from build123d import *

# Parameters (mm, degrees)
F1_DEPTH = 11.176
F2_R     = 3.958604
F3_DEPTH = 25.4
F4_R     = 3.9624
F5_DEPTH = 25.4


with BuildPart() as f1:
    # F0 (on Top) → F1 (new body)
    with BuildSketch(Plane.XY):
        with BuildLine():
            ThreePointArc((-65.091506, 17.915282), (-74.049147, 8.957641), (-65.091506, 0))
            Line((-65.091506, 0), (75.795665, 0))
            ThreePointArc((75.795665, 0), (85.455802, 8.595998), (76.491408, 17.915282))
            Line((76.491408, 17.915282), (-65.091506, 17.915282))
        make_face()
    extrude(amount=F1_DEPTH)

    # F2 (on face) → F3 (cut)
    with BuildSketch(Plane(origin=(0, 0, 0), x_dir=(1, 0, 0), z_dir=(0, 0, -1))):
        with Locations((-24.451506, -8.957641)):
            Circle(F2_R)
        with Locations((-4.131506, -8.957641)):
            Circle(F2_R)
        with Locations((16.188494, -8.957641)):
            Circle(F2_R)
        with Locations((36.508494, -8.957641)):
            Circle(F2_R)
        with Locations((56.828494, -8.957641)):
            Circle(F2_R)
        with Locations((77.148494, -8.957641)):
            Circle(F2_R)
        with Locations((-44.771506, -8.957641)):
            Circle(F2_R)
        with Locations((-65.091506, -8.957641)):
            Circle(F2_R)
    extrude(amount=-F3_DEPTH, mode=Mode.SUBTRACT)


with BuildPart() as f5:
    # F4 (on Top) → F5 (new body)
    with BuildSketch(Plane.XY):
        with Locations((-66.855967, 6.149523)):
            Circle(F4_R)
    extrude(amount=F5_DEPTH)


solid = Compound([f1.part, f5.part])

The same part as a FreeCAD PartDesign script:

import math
import FreeCAD as App
import Part
import Sketcher

V = App.Vector
Q = App.Units.Quantity

doc = App.newDocument("Part")
params = doc.addObject("Spreadsheet::Sheet", "Params")
for row, (alias, value) in enumerate([
    ("pad1_length", "0.44 in"),
    ("pocket1_length", "1 in"),
    ("sketch3_diameter", "0.312 in"),
    ("pad2_length", "1 in"),
], start=1):
    params.set(f"A{row}", alias)
    params.set(f"B{row}", "=" + value)
    params.setAlias(f"B{row}", alias)

body = doc.addObject("PartDesign::Body", "Body")

# Sketch on XY plane
sketch1 = body.newObject("Sketcher::SketchObject", "Sketch")
sketch1.AttachmentSupport = (doc.getObject("XY_Plane"), [""])
sketch1.MapMode = "FlatFace"
sketch1.addGeometry([
    Part.ArcOfCircle(Part.Circle(V(-65, 9, 0), V(0, 0, 1), 9), math.radians(90), math.radians(270)),
    Part.LineSegment(V(-65, 0, 0), V(76, 0, 0)),
    Part.ArcOfCircle(Part.Circle(V(76, 9, 0), V(0, 0, 1), 9), math.radians(-94), math.radians(90)),
    Part.LineSegment(V(76, 18, 0), V(-65, 18, 0)),
], False)
sketch1.addConstraint([
    Sketcher.Constraint("Tangent", 0, 2, 1, 1),
    Sketcher.Constraint("Coincident", 1, 2, 2, 1),
    Sketcher.Constraint("Tangent", 2, 2, 3, 1),
    Sketcher.Constraint("Tangent", 3, 2, 0, 1),
    Sketcher.Constraint("Horizontal", 1),
    Sketcher.Constraint("Horizontal", 3),
    Sketcher.Constraint("PointOnObject", 0, 2, -1),
    Sketcher.Constraint("Radius", 0, Q("8.957641 mm")),
    Sketcher.Constraint("Radius", 2, Q("8.971151 mm")),
    Sketcher.Constraint("DistanceX", 1, 1, 1, 2, Q("140.887171 mm")),
    Sketcher.Constraint("DistanceX", -1, 1, 2, 3, Q("76.491409 mm")),
])
pad1 = body.newObject("PartDesign::Pad", "Pad")
pad1.Profile = sketch1
pad1.setExpression("Length", "Params.pad1_length")

# Sketch on XY plane
sketch2 = body.newObject("Sketcher::SketchObject", "Sketch001")
sketch2.AttachmentSupport = (doc.getObject("XY_Plane"), [""])
sketch2.MapMode = "FlatFace"
sketch2.addGeometry([
    Part.Circle(V(-24.5, 9, 0), V(0, 0, 1), 4),  # 0
    Part.Circle(V(-4.1, 9, 0), V(0, 0, 1), 4),  # 1
    Part.Circle(V(16.2, 9, 0), V(0, 0, 1), 4),  # 2
    Part.Circle(V(36.5, 9, 0), V(0, 0, 1), 4),  # 3
    Part.Circle(V(56.8, 9, 0), V(0, 0, 1), 4),  # 4
    Part.Circle(V(77.1, 9, 0), V(0, 0, 1), 4),  # 5
    Part.Circle(V(-44.8, 9, 0), V(0, 0, 1), 4),  # 6
    Part.Circle(V(-65.1, 9, 0), V(0, 0, 1), 4),  # 7
], False)
sketch2.addConstraint([
    Sketcher.Constraint("Equal", 0, 1),
    Sketcher.Constraint("Equal", 1, 2),
    Sketcher.Constraint("Equal", 2, 3),
    Sketcher.Constraint("Equal", 3, 4),
    Sketcher.Constraint("Equal", 4, 5),
    Sketcher.Constraint("Equal", 5, 6),
    Sketcher.Constraint("Equal", 6, 7),
    Sketcher.Constraint("Horizontal", 0, 3, 1, 3),
    Sketcher.Constraint("Horizontal", 1, 3, 2, 3),
    Sketcher.Constraint("Horizontal", 2, 3, 3, 3),
    Sketcher.Constraint("Horizontal", 3, 3, 4, 3),
    Sketcher.Constraint("Horizontal", 4, 3, 5, 3),
    Sketcher.Constraint("Horizontal", 5, 3, 6, 3),
    Sketcher.Constraint("Horizontal", 6, 3, 7, 3),
    Sketcher.Constraint("DistanceX", 0, 3, 5, 3, Q("4 in")),
    Sketcher.Constraint("DistanceX", 6, 3, 4, 3, Q("4 in")),
    Sketcher.Constraint("DistanceX", 7, 3, 3, 3, Q("4 in")),
    Sketcher.Constraint("DistanceX", 0, 3, 1, 3, Q("0.8 in")),
    Sketcher.Constraint("DistanceX", 1, 3, 2, 3, Q("0.8 in")),
    Sketcher.Constraint("DistanceX", 2, 3, 3, 3, Q("0.8 in")),
    Sketcher.Constraint("DistanceX", 3, 3, 4, 3, Q("0.8 in")),
    Sketcher.Constraint("Diameter", 0, Q("7.917208 mm")),
    Sketcher.Constraint("DistanceY", -1, 1, 0, 3, Q("8.957641 mm")),
    Sketcher.Constraint("DistanceX", 0, 3, -1, 1, Q("24.451506 mm")),
])
pocket1 = body.newObject("PartDesign::Pocket", "Pocket")
pocket1.Profile = sketch2
pocket1.setExpression("Length", "Params.pocket1_length")
pocket1.Reversed = True
body2 = doc.addObject("PartDesign::Body", "Body001")

# Sketch on XY plane
sketch3 = body2.newObject("Sketcher::SketchObject", "Sketch002")
sketch3.AttachmentSupport = (doc.getObject("XY_Plane001"), [""])
sketch3.MapMode = "FlatFace"
sketch3.addGeometry(Part.Circle(V(-66.9, 6.1, 0), V(0, 0, 1), 4), False)
sketch3.addConstraint([
    Sketcher.Constraint("Diameter", 0, Q("0.312 in")),
    Sketcher.Constraint("DistanceX", 0, 3, -1, 1, Q("66.855967 mm")),
    Sketcher.Constraint("DistanceY", -1, 1, 0, 3, Q("6.149523 mm")),
])
sketch3.setExpression("Constraints[0]", "Params.sketch3_diameter")
pad2 = body2.newObject("PartDesign::Pad", "Pad001")
pad2.Profile = sketch3
pad2.setExpression("Length", "Params.pad2_length")

doc.recompute()
